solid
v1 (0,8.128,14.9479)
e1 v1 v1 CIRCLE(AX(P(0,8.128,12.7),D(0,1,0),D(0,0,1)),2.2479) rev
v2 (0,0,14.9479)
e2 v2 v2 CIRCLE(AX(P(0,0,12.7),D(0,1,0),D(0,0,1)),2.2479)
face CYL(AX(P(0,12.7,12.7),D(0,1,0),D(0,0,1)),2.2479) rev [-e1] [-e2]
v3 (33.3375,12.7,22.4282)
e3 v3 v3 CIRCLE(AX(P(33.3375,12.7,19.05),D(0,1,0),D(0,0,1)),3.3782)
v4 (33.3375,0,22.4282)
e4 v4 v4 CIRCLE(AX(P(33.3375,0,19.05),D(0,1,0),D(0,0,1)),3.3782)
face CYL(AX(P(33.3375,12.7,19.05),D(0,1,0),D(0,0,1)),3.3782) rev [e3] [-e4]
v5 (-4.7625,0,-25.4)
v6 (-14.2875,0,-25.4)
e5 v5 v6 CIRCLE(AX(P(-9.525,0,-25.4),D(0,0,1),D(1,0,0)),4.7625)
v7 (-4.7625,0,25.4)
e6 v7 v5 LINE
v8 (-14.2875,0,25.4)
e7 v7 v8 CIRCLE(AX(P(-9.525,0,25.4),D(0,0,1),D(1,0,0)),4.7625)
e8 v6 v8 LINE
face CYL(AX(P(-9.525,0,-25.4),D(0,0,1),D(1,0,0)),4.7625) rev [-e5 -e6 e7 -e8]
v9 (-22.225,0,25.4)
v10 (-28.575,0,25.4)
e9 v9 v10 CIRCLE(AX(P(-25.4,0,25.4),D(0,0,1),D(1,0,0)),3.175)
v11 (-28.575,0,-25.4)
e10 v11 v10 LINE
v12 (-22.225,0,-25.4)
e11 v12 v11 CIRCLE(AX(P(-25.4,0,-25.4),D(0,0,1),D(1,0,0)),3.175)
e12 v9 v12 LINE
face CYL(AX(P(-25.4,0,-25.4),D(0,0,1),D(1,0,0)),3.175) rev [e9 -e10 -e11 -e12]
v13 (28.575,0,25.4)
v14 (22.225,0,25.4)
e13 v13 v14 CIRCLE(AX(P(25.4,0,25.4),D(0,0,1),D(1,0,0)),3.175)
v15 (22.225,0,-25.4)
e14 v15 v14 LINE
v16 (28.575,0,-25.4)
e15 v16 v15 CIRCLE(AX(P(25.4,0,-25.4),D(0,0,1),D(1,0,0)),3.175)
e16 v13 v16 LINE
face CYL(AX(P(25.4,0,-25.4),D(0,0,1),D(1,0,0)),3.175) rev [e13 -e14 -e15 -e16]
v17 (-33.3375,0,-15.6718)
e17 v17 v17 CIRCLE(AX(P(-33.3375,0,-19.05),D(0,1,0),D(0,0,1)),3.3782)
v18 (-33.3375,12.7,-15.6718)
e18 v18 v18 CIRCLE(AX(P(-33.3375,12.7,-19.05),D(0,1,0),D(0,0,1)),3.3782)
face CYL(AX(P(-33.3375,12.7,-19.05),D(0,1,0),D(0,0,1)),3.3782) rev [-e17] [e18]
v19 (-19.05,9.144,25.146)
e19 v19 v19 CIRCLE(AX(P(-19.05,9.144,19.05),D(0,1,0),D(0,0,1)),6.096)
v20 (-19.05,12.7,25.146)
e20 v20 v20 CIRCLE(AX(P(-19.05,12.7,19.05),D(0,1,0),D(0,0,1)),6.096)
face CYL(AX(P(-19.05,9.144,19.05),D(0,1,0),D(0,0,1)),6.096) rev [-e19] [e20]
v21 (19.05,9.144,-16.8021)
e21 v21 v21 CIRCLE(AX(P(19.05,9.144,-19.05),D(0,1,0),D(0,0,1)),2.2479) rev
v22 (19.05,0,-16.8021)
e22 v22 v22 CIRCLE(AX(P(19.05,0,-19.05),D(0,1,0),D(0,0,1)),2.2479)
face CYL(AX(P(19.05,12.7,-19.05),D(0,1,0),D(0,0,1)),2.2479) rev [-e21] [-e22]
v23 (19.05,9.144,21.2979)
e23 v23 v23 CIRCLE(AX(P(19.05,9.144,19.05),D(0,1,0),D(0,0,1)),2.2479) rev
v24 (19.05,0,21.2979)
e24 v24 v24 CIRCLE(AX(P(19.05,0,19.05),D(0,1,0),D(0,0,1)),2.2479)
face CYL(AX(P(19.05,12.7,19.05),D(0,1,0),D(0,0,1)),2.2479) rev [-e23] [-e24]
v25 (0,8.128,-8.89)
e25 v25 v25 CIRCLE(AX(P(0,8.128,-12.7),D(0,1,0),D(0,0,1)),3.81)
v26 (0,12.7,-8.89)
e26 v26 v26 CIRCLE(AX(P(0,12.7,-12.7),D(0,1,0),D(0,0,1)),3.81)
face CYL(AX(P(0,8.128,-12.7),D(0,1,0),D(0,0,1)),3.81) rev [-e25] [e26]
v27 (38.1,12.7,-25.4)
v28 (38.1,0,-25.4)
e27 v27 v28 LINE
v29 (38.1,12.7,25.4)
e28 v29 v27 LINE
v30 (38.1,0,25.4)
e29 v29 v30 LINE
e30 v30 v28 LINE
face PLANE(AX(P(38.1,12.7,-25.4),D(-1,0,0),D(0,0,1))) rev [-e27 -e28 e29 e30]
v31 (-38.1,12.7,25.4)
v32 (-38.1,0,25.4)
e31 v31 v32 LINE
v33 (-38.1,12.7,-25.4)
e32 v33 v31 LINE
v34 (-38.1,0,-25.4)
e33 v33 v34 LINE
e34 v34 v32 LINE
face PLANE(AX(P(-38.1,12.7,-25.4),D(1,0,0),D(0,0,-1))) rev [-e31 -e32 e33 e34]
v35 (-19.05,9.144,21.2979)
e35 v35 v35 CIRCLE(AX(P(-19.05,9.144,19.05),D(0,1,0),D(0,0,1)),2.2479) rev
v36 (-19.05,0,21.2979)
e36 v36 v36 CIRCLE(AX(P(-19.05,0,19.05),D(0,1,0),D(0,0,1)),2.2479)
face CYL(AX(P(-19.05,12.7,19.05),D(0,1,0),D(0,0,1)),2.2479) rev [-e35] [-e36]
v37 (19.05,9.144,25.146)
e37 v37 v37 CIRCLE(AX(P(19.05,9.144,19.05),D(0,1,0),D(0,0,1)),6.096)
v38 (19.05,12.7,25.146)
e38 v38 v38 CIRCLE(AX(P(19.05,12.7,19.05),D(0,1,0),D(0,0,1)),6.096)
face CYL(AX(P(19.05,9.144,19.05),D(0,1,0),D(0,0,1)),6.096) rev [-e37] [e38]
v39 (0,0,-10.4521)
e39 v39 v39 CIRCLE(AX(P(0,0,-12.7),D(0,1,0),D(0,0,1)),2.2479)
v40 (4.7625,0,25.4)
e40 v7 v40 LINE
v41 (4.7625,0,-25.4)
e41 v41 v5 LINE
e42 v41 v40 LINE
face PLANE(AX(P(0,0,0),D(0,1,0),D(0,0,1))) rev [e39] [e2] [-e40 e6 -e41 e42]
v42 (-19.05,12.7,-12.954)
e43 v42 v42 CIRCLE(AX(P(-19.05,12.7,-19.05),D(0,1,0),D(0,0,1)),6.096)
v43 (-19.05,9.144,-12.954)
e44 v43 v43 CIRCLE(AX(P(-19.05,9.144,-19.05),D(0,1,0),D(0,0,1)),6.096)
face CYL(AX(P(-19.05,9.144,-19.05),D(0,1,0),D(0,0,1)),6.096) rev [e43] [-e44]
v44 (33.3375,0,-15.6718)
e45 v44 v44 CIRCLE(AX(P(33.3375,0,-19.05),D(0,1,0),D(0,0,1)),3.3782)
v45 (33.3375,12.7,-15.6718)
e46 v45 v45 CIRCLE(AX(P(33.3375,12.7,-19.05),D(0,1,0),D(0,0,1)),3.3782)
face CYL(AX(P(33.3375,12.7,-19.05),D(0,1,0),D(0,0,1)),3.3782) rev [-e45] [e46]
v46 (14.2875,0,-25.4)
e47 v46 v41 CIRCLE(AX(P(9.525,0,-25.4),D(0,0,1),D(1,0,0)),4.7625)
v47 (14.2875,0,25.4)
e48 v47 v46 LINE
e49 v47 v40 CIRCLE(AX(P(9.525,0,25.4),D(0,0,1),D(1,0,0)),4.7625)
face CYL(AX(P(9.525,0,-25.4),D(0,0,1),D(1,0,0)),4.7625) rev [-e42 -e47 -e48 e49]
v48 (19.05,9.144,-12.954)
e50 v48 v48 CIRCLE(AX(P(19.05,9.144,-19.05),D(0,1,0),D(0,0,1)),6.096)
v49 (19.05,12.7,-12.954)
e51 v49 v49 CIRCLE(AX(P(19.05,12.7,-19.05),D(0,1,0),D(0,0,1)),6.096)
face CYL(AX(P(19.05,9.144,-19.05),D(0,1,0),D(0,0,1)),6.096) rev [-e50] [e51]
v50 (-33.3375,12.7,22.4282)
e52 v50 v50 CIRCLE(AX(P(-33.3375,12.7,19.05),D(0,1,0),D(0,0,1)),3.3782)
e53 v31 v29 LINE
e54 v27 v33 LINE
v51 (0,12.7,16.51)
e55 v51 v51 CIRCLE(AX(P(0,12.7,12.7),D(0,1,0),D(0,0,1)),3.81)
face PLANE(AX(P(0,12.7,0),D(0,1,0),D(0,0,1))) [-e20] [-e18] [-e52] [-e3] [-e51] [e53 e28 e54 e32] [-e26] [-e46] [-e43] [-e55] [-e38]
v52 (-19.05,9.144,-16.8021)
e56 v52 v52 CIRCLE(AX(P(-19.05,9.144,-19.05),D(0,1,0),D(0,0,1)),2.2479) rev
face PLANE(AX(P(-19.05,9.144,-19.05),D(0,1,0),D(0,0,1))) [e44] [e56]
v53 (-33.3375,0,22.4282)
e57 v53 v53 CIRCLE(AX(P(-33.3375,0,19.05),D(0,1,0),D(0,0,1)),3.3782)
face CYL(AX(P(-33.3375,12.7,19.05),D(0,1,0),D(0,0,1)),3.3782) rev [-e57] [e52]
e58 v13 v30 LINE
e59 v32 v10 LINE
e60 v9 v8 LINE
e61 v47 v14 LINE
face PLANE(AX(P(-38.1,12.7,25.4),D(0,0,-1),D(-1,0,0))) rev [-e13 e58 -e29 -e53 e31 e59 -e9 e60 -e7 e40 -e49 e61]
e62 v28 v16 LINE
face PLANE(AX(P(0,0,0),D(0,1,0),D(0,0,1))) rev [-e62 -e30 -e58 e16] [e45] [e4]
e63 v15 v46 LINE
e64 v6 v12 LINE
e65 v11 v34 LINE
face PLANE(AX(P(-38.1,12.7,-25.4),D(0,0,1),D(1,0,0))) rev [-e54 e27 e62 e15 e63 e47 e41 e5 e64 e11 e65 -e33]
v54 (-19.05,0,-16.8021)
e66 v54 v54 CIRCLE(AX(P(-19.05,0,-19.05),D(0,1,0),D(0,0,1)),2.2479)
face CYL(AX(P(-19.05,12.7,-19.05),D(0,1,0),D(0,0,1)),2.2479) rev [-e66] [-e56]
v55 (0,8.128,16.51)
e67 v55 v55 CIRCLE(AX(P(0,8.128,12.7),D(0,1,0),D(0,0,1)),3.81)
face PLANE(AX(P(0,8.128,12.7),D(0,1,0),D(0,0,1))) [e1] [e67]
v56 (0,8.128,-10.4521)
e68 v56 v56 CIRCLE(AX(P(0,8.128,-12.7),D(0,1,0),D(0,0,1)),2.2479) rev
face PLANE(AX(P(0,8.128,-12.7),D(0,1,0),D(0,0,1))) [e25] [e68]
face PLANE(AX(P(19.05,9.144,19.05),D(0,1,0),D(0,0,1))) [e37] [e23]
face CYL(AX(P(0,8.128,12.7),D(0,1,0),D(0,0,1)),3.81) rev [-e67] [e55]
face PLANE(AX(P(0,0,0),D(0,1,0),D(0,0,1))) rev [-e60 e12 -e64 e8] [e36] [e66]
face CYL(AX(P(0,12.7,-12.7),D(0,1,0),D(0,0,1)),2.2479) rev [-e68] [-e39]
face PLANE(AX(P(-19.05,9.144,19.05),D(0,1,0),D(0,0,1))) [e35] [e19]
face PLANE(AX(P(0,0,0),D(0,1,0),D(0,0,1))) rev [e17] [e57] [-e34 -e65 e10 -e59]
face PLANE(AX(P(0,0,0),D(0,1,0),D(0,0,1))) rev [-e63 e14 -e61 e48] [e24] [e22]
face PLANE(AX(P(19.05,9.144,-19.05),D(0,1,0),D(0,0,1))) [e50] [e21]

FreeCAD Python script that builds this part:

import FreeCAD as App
import Part
import Sketcher

V = App.Vector
Q = App.Units.Quantity


def add_polygon(sketch, points):
    """Adds a closed chain of lines whose ends are joined by coincident constraints."""
    first, n = sketch.GeometryCount, len(points)
    for a, b in zip(points, points[1:] + points[:1]):
        sketch.addGeometry(Part.LineSegment(App.Vector(*a, 0), App.Vector(*b, 0)), False)
    for i in range(n):
        sketch.addConstraint(Sketcher.Constraint("Coincident", first + i, 2, first + (i + 1) % n, 1))

doc = App.newDocument("Part")
body = doc.addObject("PartDesign::Body", "Body")

# Sketch on XZ plane
sketch1 = body.newObject("Sketcher::SketchObject", "Sketch")
sketch1.AttachmentSupport = (doc.getObject("XZ_Plane"), [""])
sketch1.MapMode = "FlatFace"
add_polygon(sketch1, [(-38, -25), (-38, 25), (38, 25), (38, -25)])  # lines 0-3
sketch1.addConstraint([
    Sketcher.Constraint("Vertical", 0),
    Sketcher.Constraint("Horizontal", 1),
    Sketcher.Constraint("Vertical", 2),
    Sketcher.Constraint("Horizontal", 3),
    Sketcher.Constraint("Symmetric", 0, 2, 2, 2, -1, 1),
    Sketcher.Constraint("DistanceX", 1, 1, 1, 2, Q("3 in")),
    Sketcher.Constraint("DistanceY", 0, 1, 0, 2, Q("2 in")),
])
pad1 = body.newObject("PartDesign::Pad", "Pad")
pad1.Profile = sketch1
pad1.Length = Q("0.5 in")
pad1.Reversed = True

# Sketch on XY plane
sketch2 = body.newObject("Sketcher::SketchObject", "Sketch001")
sketch2.AttachmentSupport = (doc.getObject("XY_Plane"), [""])
sketch2.MapMode = "FlatFace"
sketch2.AttachmentOffset = App.Placement(V(0, 0, 1 * 25.4), App.Rotation())
sketch2.addGeometry([
    Part.Circle(V(-25.4, 0, 0), V(0, 0, 1), 3.2),
    Part.Circle(V(25.4, 0, 0), V(0, 0, 1), 3.2),
], False)
sketch2.addConstraint([
    Sketcher.Constraint("Equal", 0, 1),
    Sketcher.Constraint("Symmetric", 0, 3, 1, 3, -1, 1),
    Sketcher.Constraint("PointOnObject", 0, 3, -1),
    Sketcher.Constraint("Diameter", 0, Q("0.25 in")),
    Sketcher.Constraint("DistanceX", 0, 3, -1, 1, Q("1 in")),
])
pocket1 = body.newObject("PartDesign::Pocket", "Pocket")
pocket1.Profile = sketch2
pocket1.Type = "ThroughAll"

# Sketch on XY plane
sketch3 = body.newObject("Sketcher::SketchObject", "Sketch002")
sketch3.AttachmentSupport = (doc.getObject("XY_Plane"), [""])
sketch3.MapMode = "FlatFace"
sketch3.AttachmentOffset = App.Placement(V(0, 0, 1 * 25.4), App.Rotation())
sketch3.addGeometry([
    Part.Circle(V(-9.5, 0, 0), V(0, 0, 1), 4.8),
    Part.Circle(V(9.5, 0, 0), V(0, 0, 1), 4.8),
], False)
sketch3.addConstraint([
    Sketcher.Constraint("Equal", 0, 1),
    Sketcher.Constraint("Symmetric", 0, 3, 1, 3, -1, 1),
    Sketcher.Constraint("PointOnObject", 0, 3, -1),
    Sketcher.Constraint("Diameter", 0, Q("0.375 in")),
    Sketcher.Constraint("DistanceX", 0, 3, 1, 3, Q("0.75 in")),
])
pocket2 = body.newObject("PartDesign::Pocket", "Pocket001")
pocket2.Profile = sketch3
pocket2.Type = "ThroughAll"

# Sketch on XZ plane
sketch4 = body.newObject("Sketcher::SketchObject", "Sketch003")
sketch4.AttachmentSupport = (doc.getObject("XZ_Plane"), [""])
sketch4.MapMode = "FlatFace"
sketch4.AttachmentOffset = App.Placement(V(0, 0, -0.5 * 25.4), App.Rotation())
sketch4.addGeometry([
    Part.Circle(V(-33.3, 19.1, 0), V(0, 0, 1), 3.4),
    Part.Circle(V(-33.3, -19.1, 0), V(0, 0, 1), 3.4),
    Part.Circle(V(33.3, -19.1, 0), V(0, 0, 1), 3.4),
    Part.Circle(V(33.3, 19.1, 0), V(0, 0, 1), 3.4),
], False)
sketch4.addConstraint([
    Sketcher.Constraint("Equal", 0, 1),
    Sketcher.Constraint("Equal", 1, 2),
    Sketcher.Constraint("Equal", 2, 3),
    Sketcher.Constraint("Symmetric", 0, 3, 2, 3, -1, 1),
    Sketcher.Constraint("Symmetric", 1, 3, 3, 3, -1, 1),
    Sketcher.Constraint("Symmetric", 1, 3, 2, 3, -2),
    Sketcher.Constraint("Diameter", 0, Q("0.266 in")),
    Sketcher.Constraint("DistanceY", 1, 3, 0, 3, Q("1.5 in")),
    Sketcher.Constraint("DistanceX", 0, 3, -1, 1, Q("1.3125 in")),
])
doc.recompute()
hole = body.newObject("PartDesign::Hole", "Hole")
hole.Profile = sketch4
hole.ThreadType = "None"
hole.Diameter = Q("0.266 in")
hole.DepthType = "ThroughAll"
hole.Reversed = True

# Sketch on XZ plane
sketch5 = body.newObject("Sketcher::SketchObject", "Sketch004")
sketch5.AttachmentSupport = (doc.getObject("XZ_Plane"), [""])
sketch5.MapMode = "FlatFace"
sketch5.AttachmentOffset = App.Placement(V(0, 0, -0.5 * 25.4), App.Rotation())
sketch5.addGeometry([
    Part.Circle(V(-19.1, -19.1, 0), V(0, 0, 1), 2.2),  # 0
    Part.Circle(V(-19.1, 19.1, 0), V(0, 0, 1), 2.2),  # 1
    Part.Circle(V(19.1, 19.1, 0), V(0, 0, 1), 2.2),  # 2
    Part.Circle(V(19.1, -19.1, 0), V(0, 0, 1), 2.2),  # 3
    Part.Circle(V(0, -12.7, 0), V(0, 0, 1), 2.2),  # 4
    Part.Circle(V(0, 12.7, 0), V(0, 0, 1), 2.2),  # 5
], False)
sketch5.addConstraint([
    Sketcher.Constraint("Equal", 0, 1),
    Sketcher.Constraint("Equal", 1, 2),
    Sketcher.Constraint("Equal", 2, 3),
    Sketcher.Constraint("Equal", 3, 4),
    Sketcher.Constraint("Equal", 4, 5),
    Sketcher.Constraint("Symmetric", 0, 3, 2, 3, -1, 1),
    Sketcher.Constraint("Symmetric", 1, 3, 3, 3, -1, 1),
    Sketcher.Constraint("Symmetric", 4, 3, 5, 3, -1, 1),
    Sketcher.Constraint("Symmetric", 1, 3, 2, 3, -2),
    Sketcher.Constraint("PointOnObject", 4, 3, -2),
    Sketcher.Constraint("Diameter", 0, Q("0.177 in")),
    Sketcher.Constraint("DistanceY", 4, 3, 5, 3, Q("1 in")),
    Sketcher.Constraint("DistanceY", 0, 3, 1, 3, Q("1.5 in")),
    Sketcher.Constraint("DistanceX", 1, 3, 2, 3, Q("1.5 in")),
])
doc.recompute()
hole2 = body.newObject("PartDesign::Hole", "Hole001")
hole2.Profile = sketch5
hole2.ThreadType = "None"
hole2.Diameter = Q("0.177 in")
hole2.DepthType = "ThroughAll"
hole2.Reversed = True

# Sketch on XZ plane
sketch6 = body.newObject("Sketcher::SketchObject", "Sketch005")
sketch6.AttachmentSupport = (doc.getObject("XZ_Plane"), [""])
sketch6.MapMode = "FlatFace"
sketch6.AttachmentOffset = App.Placement(V(0, 0, -0.5 * 25.4), App.Rotation())
sketch6.addGeometry([
    Part.Circle(V(0, -12.7, 0), V(0, 0, 1), 3.8),
    Part.Circle(V(0, 12.7, 0), V(0, 0, 1), 3.8),
], False)
sketch6.addConstraint([
    Sketcher.Constraint("Equal", 0, 1),
    Sketcher.Constraint("Symmetric", 0, 3, 1, 3, -1, 1),
    Sketcher.Constraint("PointOnObject", 0, 3, -2),
    Sketcher.Constraint("Diameter", 0, Q("0.3 in")),
    Sketcher.Constraint("DistanceY", 0, 3, 1, 3, Q("1 in")),
])
pocket3 = body.newObject("PartDesign::Pocket", "Pocket002")
pocket3.Profile = sketch6
pocket3.Length = Q("0.18 in")
pocket3.Reversed = True

# Sketch on XZ plane
sketch7 = body.newObject("Sketcher::SketchObject", "Sketch006")
sketch7.AttachmentSupport = (doc.getObject("XZ_Plane"), [""])
sketch7.MapMode = "FlatFace"
sketch7.AttachmentOffset = App.Placement(V(0, 0, -0.5 * 25.4), App.Rotation())
sketch7.addGeometry([
    Part.Circle(V(-19, -19, 0), V(0, 0, 1), 6),
    Part.Circle(V(-19, 19, 0), V(0, 0, 1), 6),
    Part.Circle(V(19, 19, 0), V(0, 0, 1), 6),
    Part.Circle(V(19, -19, 0), V(0, 0, 1), 6),
], False)
sketch7.addConstraint([
    Sketcher.Constraint("Equal", 0, 1),
    Sketcher.Constraint("Equal", 1, 2),
    Sketcher.Constraint("Equal", 2, 3),
    Sketcher.Constraint("Symmetric", 0, 3, 2, 3, -1, 1),
    Sketcher.Constraint("Symmetric", 1, 3, 3, 3, -1, 1),
    Sketcher.Constraint("Symmetric", 1, 3, 2, 3, -2),
    Sketcher.Constraint("Diameter", 0, Q("0.48 in")),
    Sketcher.Constraint("DistanceY", 0, 3, 1, 3, Q("1.5 in")),
    Sketcher.Constraint("DistanceX", 1, 3, 2, 3, Q("1.5 in")),
])
pocket4 = body.newObject("PartDesign::Pocket", "Pocket003")
pocket4.Profile = sketch7
pocket4.Length = Q("0.14 in")
pocket4.Reversed = True

doc.recompute()
